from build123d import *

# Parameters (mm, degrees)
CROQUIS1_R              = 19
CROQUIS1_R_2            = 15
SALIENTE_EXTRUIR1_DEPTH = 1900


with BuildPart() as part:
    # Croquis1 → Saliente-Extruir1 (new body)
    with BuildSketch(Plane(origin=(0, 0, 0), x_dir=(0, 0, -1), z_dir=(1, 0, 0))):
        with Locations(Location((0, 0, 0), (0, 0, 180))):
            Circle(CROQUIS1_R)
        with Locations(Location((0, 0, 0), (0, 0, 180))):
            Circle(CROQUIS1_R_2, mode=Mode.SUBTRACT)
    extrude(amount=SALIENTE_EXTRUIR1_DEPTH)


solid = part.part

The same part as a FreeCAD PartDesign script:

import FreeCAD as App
import Part
import Sketcher
Q = App.Units.Quantity

doc = App.newDocument("Part")
body = doc.addObject("PartDesign::Body", "Body")

sketch1 = body.newObject("Sketcher::SketchObject", "Sketch")
sketch1.AttachmentSupport = (doc.getObject("YZ_Plane"), [""])
sketch1.MapMode = "FlatFace"
sketch1.addGeometry([
    Part.Circle(App.Vector(0, 0, 0), App.Vector(0, 0, 1), 19),
    Part.Circle(App.Vector(0, 0, 0), App.Vector(0, 0, 1), 15),
], False)
sketch1.addConstraint([
    Sketcher.Constraint("Coincident", 0, 3, -1, 1),
    Sketcher.Constraint("Coincident", 1, 3, -1, 1),
    Sketcher.Constraint("Diameter", 0, Q("38 mm")),
    Sketcher.Constraint("Diameter", 1, Q("30 mm")),
])
pad1 = body.newObject("PartDesign::Pad", "Pad")
pad1.Profile = sketch1
pad1.Length = 1900

doc.recompute()
